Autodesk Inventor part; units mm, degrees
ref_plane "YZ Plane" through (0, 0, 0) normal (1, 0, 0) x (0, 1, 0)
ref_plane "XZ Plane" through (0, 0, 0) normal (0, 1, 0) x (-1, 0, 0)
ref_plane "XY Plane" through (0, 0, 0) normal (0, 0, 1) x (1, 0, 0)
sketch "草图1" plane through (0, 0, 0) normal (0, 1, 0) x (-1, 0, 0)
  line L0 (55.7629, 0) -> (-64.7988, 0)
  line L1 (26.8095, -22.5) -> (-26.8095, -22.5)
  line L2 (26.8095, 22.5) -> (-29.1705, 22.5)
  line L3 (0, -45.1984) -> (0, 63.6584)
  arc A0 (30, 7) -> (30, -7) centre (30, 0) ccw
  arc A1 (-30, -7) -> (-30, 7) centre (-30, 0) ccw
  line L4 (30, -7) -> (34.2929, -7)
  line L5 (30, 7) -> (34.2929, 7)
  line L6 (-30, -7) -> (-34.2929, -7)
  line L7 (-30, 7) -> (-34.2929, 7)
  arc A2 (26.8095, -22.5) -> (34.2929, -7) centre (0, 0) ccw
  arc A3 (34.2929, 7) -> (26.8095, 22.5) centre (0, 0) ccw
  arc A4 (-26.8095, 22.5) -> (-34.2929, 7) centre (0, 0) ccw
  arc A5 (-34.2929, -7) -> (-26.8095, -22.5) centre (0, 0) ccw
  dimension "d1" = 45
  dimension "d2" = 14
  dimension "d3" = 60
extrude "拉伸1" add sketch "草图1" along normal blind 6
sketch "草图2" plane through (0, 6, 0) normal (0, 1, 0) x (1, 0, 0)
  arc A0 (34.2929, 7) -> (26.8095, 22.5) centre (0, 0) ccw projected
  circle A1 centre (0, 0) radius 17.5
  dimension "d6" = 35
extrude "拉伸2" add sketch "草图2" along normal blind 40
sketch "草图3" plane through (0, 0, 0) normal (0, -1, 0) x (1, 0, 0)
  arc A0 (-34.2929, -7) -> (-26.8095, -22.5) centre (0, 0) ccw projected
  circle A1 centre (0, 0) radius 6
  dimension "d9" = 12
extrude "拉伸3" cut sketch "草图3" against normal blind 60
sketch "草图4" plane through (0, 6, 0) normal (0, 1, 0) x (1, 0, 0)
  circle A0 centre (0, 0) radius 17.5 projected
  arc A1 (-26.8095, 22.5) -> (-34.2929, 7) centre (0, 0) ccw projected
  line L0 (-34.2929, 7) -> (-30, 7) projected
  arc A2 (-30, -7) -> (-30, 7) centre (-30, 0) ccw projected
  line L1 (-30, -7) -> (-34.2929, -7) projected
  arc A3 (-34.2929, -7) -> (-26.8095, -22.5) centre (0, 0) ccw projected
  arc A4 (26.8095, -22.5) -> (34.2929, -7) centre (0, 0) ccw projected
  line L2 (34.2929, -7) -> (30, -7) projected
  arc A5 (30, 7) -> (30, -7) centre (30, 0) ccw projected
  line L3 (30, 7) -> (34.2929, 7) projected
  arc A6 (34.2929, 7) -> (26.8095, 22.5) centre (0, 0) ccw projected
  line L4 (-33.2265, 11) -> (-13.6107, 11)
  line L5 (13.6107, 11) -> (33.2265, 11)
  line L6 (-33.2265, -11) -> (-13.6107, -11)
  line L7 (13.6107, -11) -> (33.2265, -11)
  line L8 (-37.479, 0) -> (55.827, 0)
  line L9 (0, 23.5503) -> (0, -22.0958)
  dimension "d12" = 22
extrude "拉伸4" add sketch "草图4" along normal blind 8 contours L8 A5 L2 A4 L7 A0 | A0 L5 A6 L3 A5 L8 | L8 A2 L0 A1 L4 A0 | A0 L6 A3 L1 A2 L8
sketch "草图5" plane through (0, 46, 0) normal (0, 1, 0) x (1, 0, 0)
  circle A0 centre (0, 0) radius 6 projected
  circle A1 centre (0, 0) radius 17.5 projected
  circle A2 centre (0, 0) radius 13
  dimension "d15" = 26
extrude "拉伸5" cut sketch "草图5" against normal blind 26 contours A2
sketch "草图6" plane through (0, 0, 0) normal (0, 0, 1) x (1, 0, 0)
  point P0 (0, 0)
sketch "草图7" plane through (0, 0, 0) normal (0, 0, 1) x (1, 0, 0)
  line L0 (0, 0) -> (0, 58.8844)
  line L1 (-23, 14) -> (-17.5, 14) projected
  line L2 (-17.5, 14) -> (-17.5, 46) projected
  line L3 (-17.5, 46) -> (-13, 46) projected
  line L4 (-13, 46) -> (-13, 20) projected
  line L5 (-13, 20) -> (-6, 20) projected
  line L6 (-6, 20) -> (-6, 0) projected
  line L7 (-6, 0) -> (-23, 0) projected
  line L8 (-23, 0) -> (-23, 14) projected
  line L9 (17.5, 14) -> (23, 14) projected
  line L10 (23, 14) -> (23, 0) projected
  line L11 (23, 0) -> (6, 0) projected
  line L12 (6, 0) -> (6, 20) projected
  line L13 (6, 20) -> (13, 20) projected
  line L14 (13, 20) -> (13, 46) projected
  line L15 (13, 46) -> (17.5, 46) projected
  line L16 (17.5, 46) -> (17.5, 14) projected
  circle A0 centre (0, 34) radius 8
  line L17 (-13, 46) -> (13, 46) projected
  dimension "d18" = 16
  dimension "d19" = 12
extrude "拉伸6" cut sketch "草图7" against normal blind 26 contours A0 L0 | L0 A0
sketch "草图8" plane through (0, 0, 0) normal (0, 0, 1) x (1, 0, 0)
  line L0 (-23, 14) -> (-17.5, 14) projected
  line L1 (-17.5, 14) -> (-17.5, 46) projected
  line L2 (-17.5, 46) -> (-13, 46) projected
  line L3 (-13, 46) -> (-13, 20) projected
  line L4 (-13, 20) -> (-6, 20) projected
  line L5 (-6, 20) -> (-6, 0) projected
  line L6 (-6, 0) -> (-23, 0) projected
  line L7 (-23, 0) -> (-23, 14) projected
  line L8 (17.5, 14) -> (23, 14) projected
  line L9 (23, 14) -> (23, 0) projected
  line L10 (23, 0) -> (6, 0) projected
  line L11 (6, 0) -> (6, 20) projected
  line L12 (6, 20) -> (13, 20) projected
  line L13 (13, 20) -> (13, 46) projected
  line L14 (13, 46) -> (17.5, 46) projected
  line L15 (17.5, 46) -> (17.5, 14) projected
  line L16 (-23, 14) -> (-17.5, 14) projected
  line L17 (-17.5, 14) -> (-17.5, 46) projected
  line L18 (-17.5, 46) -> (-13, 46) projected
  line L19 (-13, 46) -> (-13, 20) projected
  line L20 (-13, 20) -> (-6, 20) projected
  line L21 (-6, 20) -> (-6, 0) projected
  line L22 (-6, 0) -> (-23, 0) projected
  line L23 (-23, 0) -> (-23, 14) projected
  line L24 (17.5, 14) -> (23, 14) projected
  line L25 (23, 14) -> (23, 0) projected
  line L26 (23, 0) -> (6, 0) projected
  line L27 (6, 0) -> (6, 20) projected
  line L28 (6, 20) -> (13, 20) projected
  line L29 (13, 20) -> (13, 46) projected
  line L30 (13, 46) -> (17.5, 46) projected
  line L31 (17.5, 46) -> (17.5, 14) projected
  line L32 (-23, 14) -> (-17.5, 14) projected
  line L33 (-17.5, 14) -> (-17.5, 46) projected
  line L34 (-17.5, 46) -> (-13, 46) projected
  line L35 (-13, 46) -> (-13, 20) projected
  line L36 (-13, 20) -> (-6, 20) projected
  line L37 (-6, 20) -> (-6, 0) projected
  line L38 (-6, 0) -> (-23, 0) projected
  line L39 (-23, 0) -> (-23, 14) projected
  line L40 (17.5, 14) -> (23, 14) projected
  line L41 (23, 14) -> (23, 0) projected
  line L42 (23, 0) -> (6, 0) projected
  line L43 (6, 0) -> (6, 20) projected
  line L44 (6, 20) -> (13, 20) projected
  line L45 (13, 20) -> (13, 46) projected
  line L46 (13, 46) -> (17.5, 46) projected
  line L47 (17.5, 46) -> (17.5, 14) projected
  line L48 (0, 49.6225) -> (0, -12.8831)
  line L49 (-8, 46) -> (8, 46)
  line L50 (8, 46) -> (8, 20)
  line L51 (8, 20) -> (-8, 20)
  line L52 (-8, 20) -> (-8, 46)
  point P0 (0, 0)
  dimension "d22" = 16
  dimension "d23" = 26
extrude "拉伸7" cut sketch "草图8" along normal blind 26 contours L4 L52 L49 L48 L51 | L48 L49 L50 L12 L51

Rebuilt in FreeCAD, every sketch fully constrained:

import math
import FreeCAD as App
import Part
import Sketcher
from FreeCAD import Vector

doc = App.newDocument("Part")
body = doc.addObject("PartDesign::Body", "Body")

# Sketch on XZ plane
sketch1 = body.newObject("Sketcher::SketchObject", "Sketch")
sketch1.AttachmentSupport = (doc.getObject("XZ_Plane"), [""])
sketch1.MapMode = "FlatFace"
sketch1.addGeometry([
    Part.ArcOfCircle(Part.Circle(Vector(-30, 0, 0), Vector(0, 0, 1), 7), math.radians(-90), math.radians(90)),  # 0
    Part.LineSegment(Vector(-30, 7, 0), Vector(-34.2929, 7, 0)),  # 1
    Part.ArcOfCircle(Part.Circle(Vector(0, 0, 0), Vector(0, 0, 1), 34.99999), math.radians(139.994785), math.radians(168.463055)),  # 2
    Part.LineSegment(Vector(-26.8095, 22.5, 0), Vector(26.8095, 22.5, 0)),  # 3
    Part.ArcOfCircle(Part.Circle(Vector(0, 0, 0), Vector(0, 0, 1), 35.000043), math.radians(11.536945), math.radians(40.005215)),  # 4
    Part.LineSegment(Vector(34.2929, 7, 0), Vector(30, 7, 0)),  # 5
    Part.ArcOfCircle(Part.Circle(Vector(30, 0, 0), Vector(0, 0, 1), 7), math.radians(90), math.radians(270)),  # 6
    Part.LineSegment(Vector(30, -7, 0), Vector(34.2929, -7, 0)),  # 7
    Part.ArcOfCircle(Part.Circle(Vector(0, 0, 0), Vector(0, 0, 1), 34.99999), math.radians(-40.005215), math.radians(-11.536945)),  # 8
    Part.LineSegment(Vector(26.8095, -22.5, 0), Vector(-26.8095, -22.5, 0)),  # 9
    Part.ArcOfCircle(Part.Circle(Vector(0, 0, 0), Vector(0, 0, 1), 35.000043), math.radians(-168.463055), math.radians(-139.994785)),  # 10
    Part.LineSegment(Vector(-34.2929, -7, 0), Vector(-30, -7, 0)),  # 11
], False)
sketch1.addConstraint([
    Sketcher.Constraint("Tangent", 0, 2, 1, 1),
    Sketcher.Constraint("Coincident", 1, 2, 2, 2),
    Sketcher.Constraint("Coincident", 2, 1, 3, 1),
    Sketcher.Constraint("Coincident", 3, 2, 4, 2),
    Sketcher.Constraint("Coincident", 4, 1, 5, 1),
    Sketcher.Constraint("Tangent", 5, 2, 6, 1),
    Sketcher.Constraint("Tangent", 6, 2, 7, 1),
    Sketcher.Constraint("Coincident", 7, 2, 8, 2),
    Sketcher.Constraint("Coincident", 8, 1, 9, 1),
    Sketcher.Constraint("Coincident", 9, 2, 10, 2),
    Sketcher.Constraint("Coincident", 10, 1, 11, 1),
    Sketcher.Constraint("Tangent", 11, 2, 0, 1),
    Sketcher.Constraint("Horizontal", 1),
    Sketcher.Constraint("Horizontal", 3),
    Sketcher.Constraint("Horizontal", 5),
    Sketcher.Constraint("Horizontal", 7),
    Sketcher.Constraint("Horizontal", 9),
    Sketcher.Constraint("Horizontal", 11),
    Sketcher.Constraint("Coincident", 2, 3, -1, 1),
    Sketcher.Constraint("Coincident", 4, 3, -1, 1),
    Sketcher.Constraint("Coincident", 8, 3, -1, 1),
    Sketcher.Constraint("Coincident", 10, 3, -1, 1),
    Sketcher.Constraint("Equal", 2, 4),
    Sketcher.Constraint("Equal", 0, 6),
    Sketcher.Constraint("Equal", 4, 8),
    Sketcher.Constraint("Equal", 8, 10),
    Sketcher.Constraint("Symmetric", 0, 3, 6, 3, -1, 1),
    Sketcher.Constraint("PointOnObject", 0, 3, -1),
    Sketcher.Constraint("Vertical", 3, 2, 8, 1),
    Sketcher.Constraint("Radius", 0, 7.0),
    Sketcher.Constraint("Radius", 2, 35.0),
    Sketcher.Constraint("DistanceX", 0, 3, 6, 3, 60.0),
    Sketcher.Constraint("DistanceY", -1, 1, 2, 1, 22.5),
])
pad1 = body.newObject("PartDesign::Pad", "Pad")
pad1.Profile = sketch1
pad1.Length = 6
pad1.Reversed = True

# Sketch on XZ plane
sketch2 = body.newObject("Sketcher::SketchObject", "Sketch001")
sketch2.AttachmentSupport = (doc.getObject("XZ_Plane"), [""])
sketch2.MapMode = "FlatFace"
sketch2.AttachmentOffset = App.Placement(Vector(0, 0, -6), App.Rotation())
sketch2.addGeometry(Part.Circle(Vector(0, 0, 0), Vector(0, 0, 1), 17.5), False)
sketch2.addConstraint([
    Sketcher.Constraint("Coincident", 0, 3, -1, 1),
    Sketcher.Constraint("Diameter", 0, 35.0),
])
pad2 = body.newObject("PartDesign::Pad", "Pad001")
pad2.Profile = sketch2
pad2.Length = 40
pad2.Reversed = True

# Sketch on XZ plane
sketch3 = body.newObject("Sketcher::SketchObject", "Sketch002")
sketch3.AttachmentSupport = (doc.getObject("XZ_Plane"), [""])
sketch3.MapMode = "FlatFace"
sketch3.addGeometry(Part.Circle(Vector(0, 0, 0), Vector(0, 0, 1), 6), False)
sketch3.addConstraint([
    Sketcher.Constraint("Coincident", 0, 3, -1, 1),
    Sketcher.Constraint("Diameter", 0, 12.0),
])
pocket1 = body.newObject("PartDesign::Pocket", "Pocket")
pocket1.Profile = sketch3
pocket1.Length = 60

# Sketch on XZ plane
sketch4 = body.newObject("Sketcher::SketchObject", "Sketch003")
sketch4.AttachmentSupport = (doc.getObject("XZ_Plane"), [""])
sketch4.MapMode = "FlatFace"
sketch4.AttachmentOffset = App.Placement(Vector(0, 0, -6), App.Rotation())
sketch4.addGeometry([
    Part.ArcOfCircle(Part.Circle(Vector(30, 0, 0), Vector(0, 0, 1), 7), math.radians(90), math.radians(270)),  # 0
    Part.LineSegment(Vector(30, -7, 0), Vector(34.2929, -7, 0)),  # 1
    Part.ArcOfCircle(Part.Circle(Vector(0, 0, 0), Vector(0, 0, 1), 34.99999), math.radians(-18.317696), math.radians(-11.536945)),  # 2
    Part.LineSegment(Vector(33.2265, -11, 0), Vector(13.6107, -11, 0)),  # 3
    Part.ArcOfCircle(Part.Circle(Vector(0, 0, 0), Vector(0, 0, 1), 17.5), math.radians(-38.944716), math.radians(38.944716)),  # 4
    Part.LineSegment(Vector(13.6107, 11, 0), Vector(33.2265, 11, 0)),  # 5
    Part.ArcOfCircle(Part.Circle(Vector(0, 0, 0), Vector(0, 0, 1), 35.000043), math.radians(11.536945), math.radians(18.317696)),  # 6
    Part.LineSegment(Vector(34.2929, 7, 0), Vector(30, 7, 0)),  # 7
    Part.ArcOfCircle(Part.Circle(Vector(-30, 0, 0), Vector(0, 0, 1), 7), math.radians(-90), math.radians(90)),  # 8
    Part.LineSegment(Vector(-30, 7, 0), Vector(-34.2929, 7, 0)),  # 9
    Part.ArcOfCircle(Part.Circle(Vector(0, 0, 0), Vector(0, 0, 1), 34.99999), math.radians(161.682304), math.radians(168.463055)),  # 10
    Part.LineSegment(Vector(-33.2265, 11, 0), Vector(-13.6107, 11, 0)),  # 11
    Part.ArcOfCircle(Part.Circle(Vector(0, 0, 0), Vector(0, 0, 1), 17.5), math.radians(141.055284), math.radians(218.944716)),  # 12
    Part.LineSegment(Vector(-13.6107, -11, 0), Vector(-33.2265, -11, 0)),  # 13
    Part.ArcOfCircle(Part.Circle(Vector(0, 0, 0), Vector(0, 0, 1), 35.000043), math.radians(-168.463055), math.radians(-161.682304)),  # 14
    Part.LineSegment(Vector(-34.2929, -7, 0), Vector(-30, -7, 0)),  # 15
], False)
sketch4.addConstraint([
    Sketcher.Constraint("Tangent", 0, 2, 1, 1),
    Sketcher.Constraint("Coincident", 1, 2, 2, 2),
    Sketcher.Constraint("Coincident", 2, 1, 3, 1),
    Sketcher.Constraint("Coincident", 3, 2, 4, 1),
    Sketcher.Constraint("Coincident", 4, 2, 5, 1),
    Sketcher.Constraint("Coincident", 5, 2, 6, 2),
    Sketcher.Constraint("Coincident", 6, 1, 7, 1),
    Sketcher.Constraint("Tangent", 7, 2, 0, 1),
    Sketcher.Constraint("Tangent", 8, 2, 9, 1),
    Sketcher.Constraint("Coincident", 9, 2, 10, 2),
    Sketcher.Constraint("Coincident", 10, 1, 11, 1),
    Sketcher.Constraint("Coincident", 11, 2, 12, 1),
    Sketcher.Constraint("Coincident", 12, 2, 13, 1),
    Sketcher.Constraint("Coincident", 13, 2, 14, 2),
    Sketcher.Constraint("Coincident", 14, 1, 15, 1),
    Sketcher.Constraint("Tangent", 15, 2, 8, 1),
    Sketcher.Constraint("Horizontal", 1),
    Sketcher.Constraint("Horizontal", 3),
    Sketcher.Constraint("Horizontal", 5),
    Sketcher.Constraint("Horizontal", 7),
    Sketcher.Constraint("Horizontal", 9),
    Sketcher.Constraint("Horizontal", 11),
    Sketcher.Constraint("Horizontal", 13),
    Sketcher.Constraint("Horizontal", 15),
    Sketcher.Constraint("Coincident", 2, 3, -1, 1),
    Sketcher.Constraint("Coincident", 4, 3, -1, 1),
    Sketcher.Constraint("Coincident", 6, 3, -1, 1),
    Sketcher.Constraint("Coincident", 10, 3, -1, 1),
    Sketcher.Constraint("Coincident", 12, 3, -1, 1),
    Sketcher.Constraint("Coincident", 14, 3, -1, 1),
    Sketcher.Constraint("Equal", 2, 6),
    Sketcher.Constraint("Equal", 0, 8),
    Sketcher.Constraint("Equal", 6, 10),
    Sketcher.Constraint("Equal", 4, 12),
    Sketcher.Constraint("Equal", 10, 14),
    Sketcher.Constraint("Symmetric", 0, 3, 8, 3, -1, 1),
    Sketcher.Constraint("PointOnObject", 0, 3, -1),
    Sketcher.Constraint("Horizontal", 5, 2, 10, 1),
    Sketcher.Constraint("Horizontal", 3, 2, 12, 2),
    Sketcher.Constraint("Vertical", 3, 2, 4, 2),
    Sketcher.Constraint("Radius", 0, 7.0),
    Sketcher.Constraint("Radius", 2, 35.0),
    Sketcher.Constraint("DistanceY", 2, 1, 5, 2, 22.0),
    Sketcher.Constraint("Radius", 4, 17.5),
    Sketcher.Constraint("DistanceX", -1, 1, 0, 3, 30.0),
])
pad3 = body.newObject("PartDesign::Pad", "Pad002")
pad3.Profile = sketch4
pad3.Length = 8
pad3.Reversed = True

# Sketch on XZ plane
sketch5 = body.newObject("Sketcher::SketchObject", "Sketch004")
sketch5.AttachmentSupport = (doc.getObject("XZ_Plane"), [""])
sketch5.MapMode = "FlatFace"
sketch5.AttachmentOffset = App.Placement(Vector(0, 0, -46), App.Rotation())
sketch5.addGeometry([
    Part.Circle(Vector(0, 0, 0), Vector(0, 0, 1), 13),
    Part.Circle(Vector(0, 0, 0), Vector(0, 0, 1), 6),
], False)
sketch5.addConstraint([
    Sketcher.Constraint("Coincident", 0, 3, -1, 1),
    Sketcher.Constraint("Coincident", 1, 3, -1, 1),
    Sketcher.Constraint("Diameter", 0, 26.0),
    Sketcher.Constraint("Diameter", 1, 12.0),
])
pocket2 = body.newObject("PartDesign::Pocket", "Pocket001")
pocket2.Profile = sketch5
pocket2.Length = 26
pocket2.Reversed = True

# Sketch on XY plane
sketch6 = body.newObject("Sketcher::SketchObject", "Sketch005")
sketch6.AttachmentSupport = (doc.getObject("XY_Plane"), [""])
sketch6.MapMode = "FlatFace"
sketch6.addGeometry(Part.Circle(Vector(0, 34, 0), Vector(0, 0, 1), 8), False)
sketch6.addConstraint([
    Sketcher.Constraint("PointOnObject", 0, 3, -2),
    Sketcher.Constraint("Diameter", 0, 16.0),
    Sketcher.Constraint("DistanceY", -1, 1, 0, 3, 34.0),
])
pocket3 = body.newObject("PartDesign::Pocket", "Pocket002")
pocket3.Profile = sketch6
pocket3.Length = 26

# Sketch on XY plane
sketch7 = body.newObject("Sketcher::SketchObject", "Sketch006")
sketch7.AttachmentSupport = (doc.getObject("XY_Plane"), [""])
sketch7.MapMode = "FlatFace"
sketch7.addGeometry([
    Part.LineSegment(Vector(-8, 20, 0), Vector(8, 20, 0)),
    Part.LineSegment(Vector(8, 20, 0), Vector(8, 46, 0)),
    Part.LineSegment(Vector(8, 46, 0), Vector(-8, 46, 0)),
    Part.LineSegment(Vector(-8, 46, 0), Vector(-8, 20, 0)),
], False)
sketch7.addConstraint([
    Sketcher.Constraint("Coincident", 0, 2, 1, 1),
    Sketcher.Constraint("Coincident", 1, 2, 2, 1),
    Sketcher.Constraint("Coincident", 2, 2, 3, 1),
    Sketcher.Constraint("Coincident", 3, 2, 0, 1),
    Sketcher.Constraint("Horizontal", 0),
    Sketcher.Constraint("Vertical", 1),
    Sketcher.Constraint("Horizontal", 2),
    Sketcher.Constraint("Vertical", 3),
    Sketcher.Constraint("DistanceX", 0, 1, 0, 2, 16.0),
    Sketcher.Constraint("DistanceY", 1, 1, 1, 2, 26.0),
    Sketcher.Constraint("DistanceX", -1, 1, 0, 2, 8.0),
    Sketcher.Constraint("DistanceY", -1, 1, 0, 2, 20.0),
])
pocket4 = body.newObject("PartDesign::Pocket", "Pocket003")
pocket4.Profile = sketch7
pocket4.Length = 26
pocket4.Reversed = True

doc.recompute()
